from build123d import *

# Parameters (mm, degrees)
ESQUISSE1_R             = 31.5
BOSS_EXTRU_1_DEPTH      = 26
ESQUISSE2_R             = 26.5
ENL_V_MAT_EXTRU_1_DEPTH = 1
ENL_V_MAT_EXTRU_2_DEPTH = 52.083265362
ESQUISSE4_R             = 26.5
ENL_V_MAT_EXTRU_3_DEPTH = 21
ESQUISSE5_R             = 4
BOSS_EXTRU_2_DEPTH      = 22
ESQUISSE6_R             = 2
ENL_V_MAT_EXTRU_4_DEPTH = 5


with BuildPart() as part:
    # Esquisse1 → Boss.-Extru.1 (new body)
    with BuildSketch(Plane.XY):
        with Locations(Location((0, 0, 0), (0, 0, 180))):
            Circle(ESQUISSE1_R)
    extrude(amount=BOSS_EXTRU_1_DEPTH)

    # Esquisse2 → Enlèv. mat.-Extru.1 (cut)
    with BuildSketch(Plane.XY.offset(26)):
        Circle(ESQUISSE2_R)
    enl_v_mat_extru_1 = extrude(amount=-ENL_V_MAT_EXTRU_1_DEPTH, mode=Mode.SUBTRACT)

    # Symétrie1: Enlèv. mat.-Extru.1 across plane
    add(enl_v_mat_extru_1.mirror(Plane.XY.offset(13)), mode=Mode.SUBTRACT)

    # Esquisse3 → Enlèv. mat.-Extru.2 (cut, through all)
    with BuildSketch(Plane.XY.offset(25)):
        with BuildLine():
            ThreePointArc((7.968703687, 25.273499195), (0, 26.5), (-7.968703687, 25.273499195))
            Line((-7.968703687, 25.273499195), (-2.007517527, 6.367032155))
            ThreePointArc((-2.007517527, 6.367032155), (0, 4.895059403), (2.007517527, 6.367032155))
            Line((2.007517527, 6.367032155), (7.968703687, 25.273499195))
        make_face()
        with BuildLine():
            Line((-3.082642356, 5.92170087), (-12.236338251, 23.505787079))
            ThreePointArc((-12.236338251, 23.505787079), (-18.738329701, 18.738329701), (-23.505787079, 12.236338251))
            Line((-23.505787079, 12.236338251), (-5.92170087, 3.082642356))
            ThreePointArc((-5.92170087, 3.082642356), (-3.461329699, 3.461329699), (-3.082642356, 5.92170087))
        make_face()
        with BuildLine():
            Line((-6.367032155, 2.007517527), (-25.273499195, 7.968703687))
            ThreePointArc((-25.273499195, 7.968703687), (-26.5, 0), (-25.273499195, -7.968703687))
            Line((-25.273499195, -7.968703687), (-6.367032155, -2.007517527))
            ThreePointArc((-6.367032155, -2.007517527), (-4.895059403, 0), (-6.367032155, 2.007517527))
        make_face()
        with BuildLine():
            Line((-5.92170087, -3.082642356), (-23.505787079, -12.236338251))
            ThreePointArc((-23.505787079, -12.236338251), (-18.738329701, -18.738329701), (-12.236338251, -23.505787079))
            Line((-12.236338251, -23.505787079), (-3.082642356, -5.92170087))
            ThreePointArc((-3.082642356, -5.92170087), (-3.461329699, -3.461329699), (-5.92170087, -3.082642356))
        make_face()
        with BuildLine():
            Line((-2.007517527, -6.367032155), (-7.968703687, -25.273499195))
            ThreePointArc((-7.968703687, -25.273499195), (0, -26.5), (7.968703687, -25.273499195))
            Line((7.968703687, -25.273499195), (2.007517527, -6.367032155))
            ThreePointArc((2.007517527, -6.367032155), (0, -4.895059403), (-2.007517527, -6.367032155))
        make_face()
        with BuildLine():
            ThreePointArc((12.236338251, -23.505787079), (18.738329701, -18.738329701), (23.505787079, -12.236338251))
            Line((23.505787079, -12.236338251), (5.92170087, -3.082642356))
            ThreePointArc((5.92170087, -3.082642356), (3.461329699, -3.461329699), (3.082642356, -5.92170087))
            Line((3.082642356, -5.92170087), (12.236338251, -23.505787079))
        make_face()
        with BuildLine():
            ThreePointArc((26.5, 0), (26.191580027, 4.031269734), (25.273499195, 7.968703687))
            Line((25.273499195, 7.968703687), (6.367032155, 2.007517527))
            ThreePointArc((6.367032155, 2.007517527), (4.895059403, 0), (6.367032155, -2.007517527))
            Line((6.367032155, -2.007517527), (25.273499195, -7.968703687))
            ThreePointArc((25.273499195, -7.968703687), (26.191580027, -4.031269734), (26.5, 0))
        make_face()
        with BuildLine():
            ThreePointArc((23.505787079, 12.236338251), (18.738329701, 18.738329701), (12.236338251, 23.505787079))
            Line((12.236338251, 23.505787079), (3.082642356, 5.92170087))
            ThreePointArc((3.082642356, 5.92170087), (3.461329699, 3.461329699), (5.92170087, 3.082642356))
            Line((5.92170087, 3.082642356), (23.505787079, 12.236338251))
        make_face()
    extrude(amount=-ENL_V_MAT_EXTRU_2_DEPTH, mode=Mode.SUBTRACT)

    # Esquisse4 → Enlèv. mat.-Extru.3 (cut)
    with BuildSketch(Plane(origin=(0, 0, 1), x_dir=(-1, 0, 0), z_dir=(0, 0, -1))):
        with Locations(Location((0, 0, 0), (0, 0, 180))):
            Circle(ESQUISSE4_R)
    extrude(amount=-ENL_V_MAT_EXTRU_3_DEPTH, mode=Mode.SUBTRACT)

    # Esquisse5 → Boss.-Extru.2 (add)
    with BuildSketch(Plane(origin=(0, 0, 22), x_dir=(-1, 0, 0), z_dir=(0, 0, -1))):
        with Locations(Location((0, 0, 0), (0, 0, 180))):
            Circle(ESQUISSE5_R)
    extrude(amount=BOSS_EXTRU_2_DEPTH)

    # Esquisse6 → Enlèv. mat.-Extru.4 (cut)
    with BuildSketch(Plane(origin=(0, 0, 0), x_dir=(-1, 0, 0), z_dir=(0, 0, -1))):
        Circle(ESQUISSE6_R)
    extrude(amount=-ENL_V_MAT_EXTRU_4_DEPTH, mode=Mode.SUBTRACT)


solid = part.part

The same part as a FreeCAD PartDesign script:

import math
import FreeCAD as App
import Part
import Sketcher
Q = App.Units.Quantity

doc = App.newDocument("Part")
body = doc.addObject("PartDesign::Body", "Body")

# Sketch on XY plane
sketch1 = body.newObject("Sketcher::SketchObject", "Sketch")
sketch1.AttachmentSupport = (doc.getObject("XY_Plane"), [""])
sketch1.MapMode = "FlatFace"
sketch1.addGeometry(Part.Circle(App.Vector(0, 0, 0), App.Vector(0, 0, 1), 32), False)
sketch1.addConstraint([
    Sketcher.Constraint("Coincident", 0, 3, -1, 1),
    Sketcher.Constraint("Diameter", 0, Q("63 mm")),
])
pad1 = body.newObject("PartDesign::Pad", "Pad")
pad1.Profile = sketch1
pad1.Length = 26

# Sketch on XY plane
sketch2 = body.newObject("Sketcher::SketchObject", "Sketch001")
sketch2.AttachmentSupport = (doc.getObject("XY_Plane"), [""])
sketch2.MapMode = "FlatFace"
sketch2.AttachmentOffset = App.Placement(App.Vector(0, 0, 26), App.Rotation())
sketch2.addGeometry(Part.Circle(App.Vector(0, 0, 0), App.Vector(0, 0, 1), 26), False)
sketch2.addConstraint([
    Sketcher.Constraint("Coincident", 0, 3, -1, 1),
    Sketcher.Constraint("Diameter", 0, Q("53 mm")),
])
pocket1 = body.newObject("PartDesign::Pocket", "Pocket")
pocket1.Profile = sketch2
pocket1.Length = 1
doc.recompute()

datumplane = body.newObject("PartDesign::Plane", "DatumPlane")
datumplane.AttachmentSupport = (doc.getObject("XY_Plane"), [""])
datumplane.MapMode = "FlatFace"
datumplane.AttachmentOffset = App.Placement(App.Vector(0, 0, 13), App.Rotation())
mirrored = body.newObject("PartDesign::Mirrored", "Mirrored")
mirrored.Originals = [pocket1]
mirrored.MirrorPlane = (datumplane, [""])
body.Tip = mirrored

# Sketch on XY plane
sketch3 = body.newObject("Sketcher::SketchObject", "Sketch002")
sketch3.AttachmentSupport = (doc.getObject("XY_Plane"), [""])
sketch3.MapMode = "FlatFace"
sketch3.AttachmentOffset = App.Placement(App.Vector(0, 0, 25), App.Rotation())
sketch3.addGeometry([
    Part.ArcOfCircle(Part.Circle(App.Vector(0, 0, 0), App.Vector(0, 0, 1), 26.5), math.radians(73), math.radians(107)),  # 0
    Part.LineSegment(App.Vector(-8, 25.3, 0), App.Vector(-2, 6.4, 0)),  # 1
    Part.ArcOfCircle(Part.Circle(App.Vector(0, 7, 0), App.Vector(0, 0, 1), 2.1), math.radians(-163), math.radians(-17)),  # 2
    Part.LineSegment(App.Vector(2, 6.4, 0), App.Vector(8, 25.3, 0)),  # 3
    Part.LineSegment(App.Vector(-3.1, 5.9, 0), App.Vector(-12.2, 23.5, 0)),  # 4
    Part.ArcOfCircle(Part.Circle(App.Vector(0, 0, 0), App.Vector(0, 0, 1), 26.5), math.radians(118), math.radians(152)),  # 5
    Part.LineSegment(App.Vector(-23.5, 12.2, 0), App.Vector(-5.9, 3.1, 0)),  # 6
    Part.ArcOfCircle(Part.Circle(App.Vector(-4.9, 4.9, 0), App.Vector(0, 0, 1), 2.1), math.radians(-117), math.radians(27)),  # 7
    Part.LineSegment(App.Vector(-6.4, 2, 0), App.Vector(-25.3, 8, 0)),  # 8
    Part.ArcOfCircle(Part.Circle(App.Vector(0, 0, 0), App.Vector(0, 0, 1), 26.5), math.radians(163), math.radians(197)),  # 9
    Part.LineSegment(App.Vector(-25.3, -8, 0), App.Vector(-6.4, -2, 0)),  # 10
    Part.ArcOfCircle(Part.Circle(App.Vector(-7, 0, 0), App.Vector(0, 0, 1), 2.1), math.radians(-73), math.radians(73)),  # 11
    Part.LineSegment(App.Vector(-5.9, -3.1, 0), App.Vector(-23.5, -12.2, 0)),  # 12
    Part.ArcOfCircle(Part.Circle(App.Vector(0, 0, 0), App.Vector(0, 0, 1), 26.5), math.radians(-152), math.radians(-118)),  # 13
    Part.LineSegment(App.Vector(-12.2, -23.5, 0), App.Vector(-3.1, -5.9, 0)),  # 14
    Part.ArcOfCircle(Part.Circle(App.Vector(-4.9, -4.9, 0), App.Vector(0, 0, 1), 2.1), math.radians(-27), math.radians(117)),  # 15
    Part.LineSegment(App.Vector(-2, -6.4, 0), App.Vector(-8, -25.3, 0)),  # 16
    Part.ArcOfCircle(Part.Circle(App.Vector(0, 0, 0), App.Vector(0, 0, 1), 26.5), math.radians(-107), math.radians(-73)),  # 17
    Part.LineSegment(App.Vector(8, -25.3, 0), App.Vector(2, -6.4, 0)),  # 18
    Part.ArcOfCircle(Part.Circle(App.Vector(0, -7, 0), App.Vector(0, 0, 1), 2.1), math.radians(17), math.radians(163)),  # 19
    Part.ArcOfCircle(Part.Circle(App.Vector(0, 0, 0), App.Vector(0, 0, 1), 26.5), math.radians(-62), math.radians(-28)),  # 20
    Part.LineSegment(App.Vector(23.5, -12.2, 0), App.Vector(5.9, -3.1, 0)),  # 21
    Part.ArcOfCircle(Part.Circle(App.Vector(4.9, -4.9, 0), App.Vector(0, 0, 1), 2.1), math.radians(63), math.radians(207)),  # 22
    Part.LineSegment(App.Vector(3.1, -5.9, 0), App.Vector(12.2, -23.5, 0)),  # 23
    Part.ArcOfCircle(Part.Circle(App.Vector(0, 0, 0), App.Vector(0, 0, 1), 26.5), math.radians(0), math.radians(17.5)),  # 24
    Part.LineSegment(App.Vector(25.3, 8, 0), App.Vector(6.4, 2, 0)),  # 25
    Part.ArcOfCircle(Part.Circle(App.Vector(7, 0, 0), App.Vector(0, 0, 1), 2.1), math.radians(107), math.radians(253)),  # 26
    Part.LineSegment(App.Vector(6.4, -2, 0), App.Vector(25.3, -8, 0)),  # 27
    Part.ArcOfCircle(Part.Circle(App.Vector(0, 0, 0), App.Vector(0, 0, 1), 26.5), math.radians(-17.5), math.radians(0)),  # 28
    Part.ArcOfCircle(Part.Circle(App.Vector(0, 0, 0), App.Vector(0, 0, 1), 26.5), math.radians(28), math.radians(62)),  # 29
    Part.LineSegment(App.Vector(12.2, 23.5, 0), App.Vector(3.1, 5.9, 0)),  # 30
    Part.ArcOfCircle(Part.Circle(App.Vector(4.9, 4.9, 0), App.Vector(0, 0, 1), 2.1), math.radians(153), math.radians(297)),  # 31
    Part.LineSegment(App.Vector(5.9, 3.1, 0), App.Vector(23.5, 12.2, 0)),  # 32
], False)
sketch3.addConstraint([
    Sketcher.Constraint("Coincident", 0, 2, 1, 1),
    Sketcher.Constraint("Tangent", 1, 2, 2, 1),
    Sketcher.Constraint("Tangent", 2, 2, 3, 1),
    Sketcher.Constraint("Coincident", 3, 2, 0, 1),
    Sketcher.Constraint("Coincident", 4, 2, 5, 1),
    Sketcher.Constraint("Coincident", 5, 2, 6, 1),
    Sketcher.Constraint("Tangent", 6, 2, 7, 1),
    Sketcher.Constraint("Tangent", 7, 2, 4, 1),
    Sketcher.Constraint("Coincident", 8, 2, 9, 1),
    Sketcher.Constraint("Coincident", 9, 2, 10, 1),
    Sketcher.Constraint("Tangent", 10, 2, 11, 1),
    Sketcher.Constraint("Tangent", 11, 2, 8, 1),
    Sketcher.Constraint("Coincident", 12, 2, 13, 1),
    Sketcher.Constraint("Coincident", 13, 2, 14, 1),
    Sketcher.Constraint("Tangent", 14, 2, 15, 1),
    Sketcher.Constraint("Tangent", 15, 2, 12, 1),
    Sketcher.Constraint("Coincident", 16, 2, 17, 1),
    Sketcher.Constraint("Coincident", 17, 2, 18, 1),
    Sketcher.Constraint("Tangent", 18, 2, 19, 1),
    Sketcher.Constraint("Tangent", 19, 2, 16, 1),
    Sketcher.Constraint("Coincident", 20, 2, 21, 1),
    Sketcher.Constraint("Tangent", 21, 2, 22, 1),
    Sketcher.Constraint("Tangent", 22, 2, 23, 1),
    Sketcher.Constraint("Coincident", 23, 2, 20, 1),
    Sketcher.Constraint("Coincident", 24, 2, 25, 1),
    Sketcher.Constraint("Tangent", 25, 2, 26, 1),
    Sketcher.Constraint("Tangent", 26, 2, 27, 1),
    Sketcher.Constraint("Coincident", 27, 2, 28, 1),
    Sketcher.Constraint("Tangent", 28, 2, 24, 1),
    Sketcher.Constraint("Coincident", 29, 2, 30, 1),
    Sketcher.Constraint("Tangent", 30, 2, 31, 1),
    Sketcher.Constraint("Tangent", 31, 2, 32, 1),
    Sketcher.Constraint("Coincident", 32, 2, 29, 1),
    Sketcher.Constraint("Coincident", 0, 3, -1, 1),
    Sketcher.Constraint("Coincident", 5, 3, -1, 1),
    Sketcher.Constraint("Coincident", 9, 3, -1, 1),
    Sketcher.Constraint("Coincident", 13, 3, -1, 1),
    Sketcher.Constraint("Coincident", 17, 3, -1, 1),
    Sketcher.Constraint("Coincident", 20, 3, -1, 1),
    Sketcher.Constraint("Coincident", 24, 3, -1, 1),
    Sketcher.Constraint("Coincident", 29, 3, -1, 1),
    Sketcher.Constraint("Equal", 0, 5),
    Sketcher.Constraint("Equal", 2, 7),
    Sketcher.Constraint("Equal", 5, 9),
    Sketcher.Constraint("Equal", 7, 11),
    Sketcher.Constraint("Equal", 9, 13),
    Sketcher.Constraint("Equal", 11, 15),
    Sketcher.Constraint("Equal", 13, 17),
    Sketcher.Constraint("Equal", 15, 19),
    Sketcher.Constraint("Equal", 17, 20),
    Sketcher.Constraint("Equal", 19, 22),
    Sketcher.Constraint("Equal", 20, 24),
    Sketcher.Constraint("Equal", 22, 26),
    Sketcher.Constraint("Equal", 24, 28),
    Sketcher.Constraint("Equal", 28, 29),
    Sketcher.Constraint("Equal", 26, 31),
    Sketcher.Constraint("Symmetric", 2, 3, 19, 3, -1, 1),
    Sketcher.Constraint("Symmetric", 7, 3, 22, 3, -1, 1),
    Sketcher.Constraint("Symmetric", 11, 3, 26, 3, -1, 1),
    Sketcher.Constraint("Symmetric", 15, 3, 31, 3, -1, 1),
    Sketcher.Constraint("Symmetric", 15, 3, 22, 3, -2),
    Sketcher.Constraint("Symmetric", 1, 2, 2, 2, -2),
    Sketcher.Constraint("Symmetric", 11, 2, 25, 2, -2),
    Sketcher.Constraint("PointOnObject", 28, 2, -1),
    Sketcher.Constraint("Perpendicular", 3, 8),
    Sketcher.Constraint("Perpendicular", 1, 10),
    Sketcher.Constraint("Perpendicular", 4, 12),
    Sketcher.Constraint("Perpendicular", 6, 14),
    Sketcher.Constraint("Perpendicular", 8, 16),
    Sketcher.Constraint("Perpendicular", 10, 18),
    Sketcher.Constraint("Perpendicular", 14, 21),
    Sketcher.Constraint("Perpendicular", 12, 23),
    Sketcher.Constraint("Perpendicular", 16, 27),
    Sketcher.Constraint("Perpendicular", 21, 30),
    Sketcher.Constraint("Perpendicular", 23, 32),
    Sketcher.Constraint("Horizontal", 12, 2, 20, 2),
    Sketcher.Constraint("Equal", 3, 4),
    Sketcher.Constraint("Equal", 4, 6),
    Sketcher.Constraint("Equal", 6, 8),
    Sketcher.Constraint("Radius", 0, Q("26.5 mm")),
    Sketcher.Constraint("DistanceY", -1, 1, 2, 3, Q("7 mm")),
    Sketcher.Constraint("Angle", 1, Q("-72.5 deg")),
    Sketcher.Constraint("Angle", 4, Q("117.5 deg")),
    Sketcher.Constraint("Radius", 2, Q("2.104941 mm")),
])
pocket2 = body.newObject("PartDesign::Pocket", "Pocket001")
pocket2.Profile = sketch3
pocket2.Type = "ThroughAll"

# Sketch on XY plane
sketch4 = body.newObject("Sketcher::SketchObject", "Sketch003")
sketch4.AttachmentSupport = (doc.getObject("XY_Plane"), [""])
sketch4.MapMode = "FlatFace"
sketch4.AttachmentOffset = App.Placement(App.Vector(0, 0, 1), App.Rotation())
sketch4.addGeometry(Part.Circle(App.Vector(0, 0, 0), App.Vector(0, 0, 1), 26), False)
sketch4.addConstraint([
    Sketcher.Constraint("Coincident", 0, 3, -1, 1),
    Sketcher.Constraint("Diameter", 0, Q("53 mm")),
])
pocket3 = body.newObject("PartDesign::Pocket", "Pocket002")
pocket3.Profile = sketch4
pocket3.Length = 21
pocket3.Reversed = True

# Sketch on XY plane
sketch5 = body.newObject("Sketcher::SketchObject", "Sketch004")
sketch5.AttachmentSupport = (doc.getObject("XY_Plane"), [""])
sketch5.MapMode = "FlatFace"
sketch5.AttachmentOffset = App.Placement(App.Vector(0, 0, 22), App.Rotation())
sketch5.addGeometry(Part.Circle(App.Vector(0, 0, 0), App.Vector(0, 0, 1), 4), False)
sketch5.addConstraint([
    Sketcher.Constraint("Coincident", 0, 3, -1, 1),
    Sketcher.Constraint("Diameter", 0, Q("8 mm")),
])
pad2 = body.newObject("PartDesign::Pad", "Pad001")
pad2.Profile = sketch5
pad2.Length = 22
pad2.Reversed = True

# Sketch on XY plane
sketch6 = body.newObject("Sketcher::SketchObject", "Sketch005")
sketch6.AttachmentSupport = (doc.getObject("XY_Plane"), [""])
sketch6.MapMode = "FlatFace"
sketch6.addGeometry(Part.Circle(App.Vector(0, 0, 0), App.Vector(0, 0, 1), 2), False)
sketch6.addConstraint([
    Sketcher.Constraint("Coincident", 0, 3, -1, 1),
    Sketcher.Constraint("Diameter", 0, Q("4 mm")),
])
pocket4 = body.newObject("PartDesign::Pocket", "Pocket003")
pocket4.Profile = sketch6
pocket4.Length = 5
pocket4.Reversed = True

doc.recompute()
